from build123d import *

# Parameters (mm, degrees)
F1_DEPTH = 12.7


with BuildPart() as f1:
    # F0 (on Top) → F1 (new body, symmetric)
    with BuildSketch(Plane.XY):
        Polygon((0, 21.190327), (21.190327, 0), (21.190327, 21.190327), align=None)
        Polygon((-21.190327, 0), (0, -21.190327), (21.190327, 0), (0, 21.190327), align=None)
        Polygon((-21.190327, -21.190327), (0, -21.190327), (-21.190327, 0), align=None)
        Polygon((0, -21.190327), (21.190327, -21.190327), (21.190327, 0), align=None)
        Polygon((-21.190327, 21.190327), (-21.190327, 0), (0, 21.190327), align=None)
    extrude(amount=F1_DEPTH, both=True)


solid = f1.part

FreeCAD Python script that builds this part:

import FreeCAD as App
import Part
import Sketcher
Q = App.Units.Quantity

doc = App.newDocument("Part")
body = doc.addObject("PartDesign::Body", "Body")

# Sketch on XY plane
sketch1 = doc.addObject("Sketcher::SketchObject", "Sketch")
body.addObject(sketch1)
sketch1.AttachmentSupport = (doc.XY_Plane, [""])
sketch1.MapMode = "FlatFace"
sketch1.addGeometry([
    Part.LineSegment(App.Vector(21, 21, 0), App.Vector(-21, 21, 0)),
    Part.LineSegment(App.Vector(-21, 21, 0), App.Vector(-21, -21, 0)),
    Part.LineSegment(App.Vector(-21, -21, 0), App.Vector(21, -21, 0)),
    Part.LineSegment(App.Vector(21, -21, 0), App.Vector(21, 21, 0)),
], False)
sketch1.addConstraint([
    Sketcher.Constraint("Coincident", 0, 2, 1, 1),
    Sketcher.Constraint("Coincident", 1, 2, 2, 1),
    Sketcher.Constraint("Coincident", 2, 2, 3, 1),
    Sketcher.Constraint("Coincident", 3, 2, 0, 1),
    Sketcher.Constraint("Horizontal", 0),
    Sketcher.Constraint("Vertical", 1),
    Sketcher.Constraint("Horizontal", 2),
    Sketcher.Constraint("Vertical", 3),
    Sketcher.Constraint("Symmetric", 0, 2, 2, 2, -1, 1),
    Sketcher.Constraint("Equal", 2, 1),
    Sketcher.Constraint("DistanceX", 0, 2, 0, 1, 42.380654),
])
pad1 = doc.addObject("PartDesign::Pad", "Pad")
body.addObject(pad1)
pad1.Profile = sketch1
pad1.Length = Q("1 in")
pad1.Midplane = True

doc.recompute()
